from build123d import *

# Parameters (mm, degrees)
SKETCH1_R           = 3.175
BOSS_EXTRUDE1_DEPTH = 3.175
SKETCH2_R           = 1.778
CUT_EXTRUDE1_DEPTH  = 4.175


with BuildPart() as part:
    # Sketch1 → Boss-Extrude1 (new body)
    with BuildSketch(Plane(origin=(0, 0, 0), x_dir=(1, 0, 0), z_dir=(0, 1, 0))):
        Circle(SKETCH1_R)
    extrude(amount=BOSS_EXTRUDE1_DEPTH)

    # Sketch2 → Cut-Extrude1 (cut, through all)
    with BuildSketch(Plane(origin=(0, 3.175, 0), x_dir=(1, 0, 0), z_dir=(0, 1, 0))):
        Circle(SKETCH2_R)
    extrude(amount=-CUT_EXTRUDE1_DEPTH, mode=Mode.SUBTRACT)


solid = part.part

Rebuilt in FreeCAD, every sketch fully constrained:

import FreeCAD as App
import Part
import Sketcher

V = App.Vector
Q = App.Units.Quantity

doc = App.newDocument("Part")
body = doc.addObject("PartDesign::Body", "Body")

# Sketch on XZ plane
sketch1 = doc.addObject("Sketcher::SketchObject", "Sketch")
body.addObject(sketch1)
sketch1.AttachmentSupport = (doc.XZ_Plane, [""])
sketch1.MapMode = "FlatFace"
sketch1.addGeometry(Part.Circle(V(0, 0, 0), V(0, 0, 1), 3.2), False)
sketch1.addConstraint(Sketcher.Constraint("Coincident", 0, 3, -1, 1))
sketch1.addConstraint(Sketcher.Constraint("Diameter", 0, Q("0.25 in")))
pad1 = doc.addObject("PartDesign::Pad", "Pad")
body.addObject(pad1)
pad1.Profile = sketch1
pad1.Length = Q("0.125 in")
pad1.Reversed = True

# Sketch on XZ plane
sketch2 = doc.addObject("Sketcher::SketchObject", "Sketch001")
body.addObject(sketch2)
sketch2.AttachmentSupport = (doc.XZ_Plane, [""])
sketch2.MapMode = "FlatFace"
sketch2.AttachmentOffset = App.Placement(V(0, 0, -0.125 * 25.4), App.Rotation())
sketch2.addGeometry(Part.Circle(V(0, 0, 0), V(0, 0, 1), 1.8), False)
sketch2.addConstraint(Sketcher.Constraint("Coincident", 0, 3, -1, 1))
sketch2.addConstraint(Sketcher.Constraint("Diameter", 0, Q("0.14 in")))
pocket1 = doc.addObject("PartDesign::Pocket", "Pocket")
body.addObject(pocket1)
pocket1.Profile = sketch2
pocket1.Type = "ThroughAll"
pocket1.Reversed = True

doc.recompute()
